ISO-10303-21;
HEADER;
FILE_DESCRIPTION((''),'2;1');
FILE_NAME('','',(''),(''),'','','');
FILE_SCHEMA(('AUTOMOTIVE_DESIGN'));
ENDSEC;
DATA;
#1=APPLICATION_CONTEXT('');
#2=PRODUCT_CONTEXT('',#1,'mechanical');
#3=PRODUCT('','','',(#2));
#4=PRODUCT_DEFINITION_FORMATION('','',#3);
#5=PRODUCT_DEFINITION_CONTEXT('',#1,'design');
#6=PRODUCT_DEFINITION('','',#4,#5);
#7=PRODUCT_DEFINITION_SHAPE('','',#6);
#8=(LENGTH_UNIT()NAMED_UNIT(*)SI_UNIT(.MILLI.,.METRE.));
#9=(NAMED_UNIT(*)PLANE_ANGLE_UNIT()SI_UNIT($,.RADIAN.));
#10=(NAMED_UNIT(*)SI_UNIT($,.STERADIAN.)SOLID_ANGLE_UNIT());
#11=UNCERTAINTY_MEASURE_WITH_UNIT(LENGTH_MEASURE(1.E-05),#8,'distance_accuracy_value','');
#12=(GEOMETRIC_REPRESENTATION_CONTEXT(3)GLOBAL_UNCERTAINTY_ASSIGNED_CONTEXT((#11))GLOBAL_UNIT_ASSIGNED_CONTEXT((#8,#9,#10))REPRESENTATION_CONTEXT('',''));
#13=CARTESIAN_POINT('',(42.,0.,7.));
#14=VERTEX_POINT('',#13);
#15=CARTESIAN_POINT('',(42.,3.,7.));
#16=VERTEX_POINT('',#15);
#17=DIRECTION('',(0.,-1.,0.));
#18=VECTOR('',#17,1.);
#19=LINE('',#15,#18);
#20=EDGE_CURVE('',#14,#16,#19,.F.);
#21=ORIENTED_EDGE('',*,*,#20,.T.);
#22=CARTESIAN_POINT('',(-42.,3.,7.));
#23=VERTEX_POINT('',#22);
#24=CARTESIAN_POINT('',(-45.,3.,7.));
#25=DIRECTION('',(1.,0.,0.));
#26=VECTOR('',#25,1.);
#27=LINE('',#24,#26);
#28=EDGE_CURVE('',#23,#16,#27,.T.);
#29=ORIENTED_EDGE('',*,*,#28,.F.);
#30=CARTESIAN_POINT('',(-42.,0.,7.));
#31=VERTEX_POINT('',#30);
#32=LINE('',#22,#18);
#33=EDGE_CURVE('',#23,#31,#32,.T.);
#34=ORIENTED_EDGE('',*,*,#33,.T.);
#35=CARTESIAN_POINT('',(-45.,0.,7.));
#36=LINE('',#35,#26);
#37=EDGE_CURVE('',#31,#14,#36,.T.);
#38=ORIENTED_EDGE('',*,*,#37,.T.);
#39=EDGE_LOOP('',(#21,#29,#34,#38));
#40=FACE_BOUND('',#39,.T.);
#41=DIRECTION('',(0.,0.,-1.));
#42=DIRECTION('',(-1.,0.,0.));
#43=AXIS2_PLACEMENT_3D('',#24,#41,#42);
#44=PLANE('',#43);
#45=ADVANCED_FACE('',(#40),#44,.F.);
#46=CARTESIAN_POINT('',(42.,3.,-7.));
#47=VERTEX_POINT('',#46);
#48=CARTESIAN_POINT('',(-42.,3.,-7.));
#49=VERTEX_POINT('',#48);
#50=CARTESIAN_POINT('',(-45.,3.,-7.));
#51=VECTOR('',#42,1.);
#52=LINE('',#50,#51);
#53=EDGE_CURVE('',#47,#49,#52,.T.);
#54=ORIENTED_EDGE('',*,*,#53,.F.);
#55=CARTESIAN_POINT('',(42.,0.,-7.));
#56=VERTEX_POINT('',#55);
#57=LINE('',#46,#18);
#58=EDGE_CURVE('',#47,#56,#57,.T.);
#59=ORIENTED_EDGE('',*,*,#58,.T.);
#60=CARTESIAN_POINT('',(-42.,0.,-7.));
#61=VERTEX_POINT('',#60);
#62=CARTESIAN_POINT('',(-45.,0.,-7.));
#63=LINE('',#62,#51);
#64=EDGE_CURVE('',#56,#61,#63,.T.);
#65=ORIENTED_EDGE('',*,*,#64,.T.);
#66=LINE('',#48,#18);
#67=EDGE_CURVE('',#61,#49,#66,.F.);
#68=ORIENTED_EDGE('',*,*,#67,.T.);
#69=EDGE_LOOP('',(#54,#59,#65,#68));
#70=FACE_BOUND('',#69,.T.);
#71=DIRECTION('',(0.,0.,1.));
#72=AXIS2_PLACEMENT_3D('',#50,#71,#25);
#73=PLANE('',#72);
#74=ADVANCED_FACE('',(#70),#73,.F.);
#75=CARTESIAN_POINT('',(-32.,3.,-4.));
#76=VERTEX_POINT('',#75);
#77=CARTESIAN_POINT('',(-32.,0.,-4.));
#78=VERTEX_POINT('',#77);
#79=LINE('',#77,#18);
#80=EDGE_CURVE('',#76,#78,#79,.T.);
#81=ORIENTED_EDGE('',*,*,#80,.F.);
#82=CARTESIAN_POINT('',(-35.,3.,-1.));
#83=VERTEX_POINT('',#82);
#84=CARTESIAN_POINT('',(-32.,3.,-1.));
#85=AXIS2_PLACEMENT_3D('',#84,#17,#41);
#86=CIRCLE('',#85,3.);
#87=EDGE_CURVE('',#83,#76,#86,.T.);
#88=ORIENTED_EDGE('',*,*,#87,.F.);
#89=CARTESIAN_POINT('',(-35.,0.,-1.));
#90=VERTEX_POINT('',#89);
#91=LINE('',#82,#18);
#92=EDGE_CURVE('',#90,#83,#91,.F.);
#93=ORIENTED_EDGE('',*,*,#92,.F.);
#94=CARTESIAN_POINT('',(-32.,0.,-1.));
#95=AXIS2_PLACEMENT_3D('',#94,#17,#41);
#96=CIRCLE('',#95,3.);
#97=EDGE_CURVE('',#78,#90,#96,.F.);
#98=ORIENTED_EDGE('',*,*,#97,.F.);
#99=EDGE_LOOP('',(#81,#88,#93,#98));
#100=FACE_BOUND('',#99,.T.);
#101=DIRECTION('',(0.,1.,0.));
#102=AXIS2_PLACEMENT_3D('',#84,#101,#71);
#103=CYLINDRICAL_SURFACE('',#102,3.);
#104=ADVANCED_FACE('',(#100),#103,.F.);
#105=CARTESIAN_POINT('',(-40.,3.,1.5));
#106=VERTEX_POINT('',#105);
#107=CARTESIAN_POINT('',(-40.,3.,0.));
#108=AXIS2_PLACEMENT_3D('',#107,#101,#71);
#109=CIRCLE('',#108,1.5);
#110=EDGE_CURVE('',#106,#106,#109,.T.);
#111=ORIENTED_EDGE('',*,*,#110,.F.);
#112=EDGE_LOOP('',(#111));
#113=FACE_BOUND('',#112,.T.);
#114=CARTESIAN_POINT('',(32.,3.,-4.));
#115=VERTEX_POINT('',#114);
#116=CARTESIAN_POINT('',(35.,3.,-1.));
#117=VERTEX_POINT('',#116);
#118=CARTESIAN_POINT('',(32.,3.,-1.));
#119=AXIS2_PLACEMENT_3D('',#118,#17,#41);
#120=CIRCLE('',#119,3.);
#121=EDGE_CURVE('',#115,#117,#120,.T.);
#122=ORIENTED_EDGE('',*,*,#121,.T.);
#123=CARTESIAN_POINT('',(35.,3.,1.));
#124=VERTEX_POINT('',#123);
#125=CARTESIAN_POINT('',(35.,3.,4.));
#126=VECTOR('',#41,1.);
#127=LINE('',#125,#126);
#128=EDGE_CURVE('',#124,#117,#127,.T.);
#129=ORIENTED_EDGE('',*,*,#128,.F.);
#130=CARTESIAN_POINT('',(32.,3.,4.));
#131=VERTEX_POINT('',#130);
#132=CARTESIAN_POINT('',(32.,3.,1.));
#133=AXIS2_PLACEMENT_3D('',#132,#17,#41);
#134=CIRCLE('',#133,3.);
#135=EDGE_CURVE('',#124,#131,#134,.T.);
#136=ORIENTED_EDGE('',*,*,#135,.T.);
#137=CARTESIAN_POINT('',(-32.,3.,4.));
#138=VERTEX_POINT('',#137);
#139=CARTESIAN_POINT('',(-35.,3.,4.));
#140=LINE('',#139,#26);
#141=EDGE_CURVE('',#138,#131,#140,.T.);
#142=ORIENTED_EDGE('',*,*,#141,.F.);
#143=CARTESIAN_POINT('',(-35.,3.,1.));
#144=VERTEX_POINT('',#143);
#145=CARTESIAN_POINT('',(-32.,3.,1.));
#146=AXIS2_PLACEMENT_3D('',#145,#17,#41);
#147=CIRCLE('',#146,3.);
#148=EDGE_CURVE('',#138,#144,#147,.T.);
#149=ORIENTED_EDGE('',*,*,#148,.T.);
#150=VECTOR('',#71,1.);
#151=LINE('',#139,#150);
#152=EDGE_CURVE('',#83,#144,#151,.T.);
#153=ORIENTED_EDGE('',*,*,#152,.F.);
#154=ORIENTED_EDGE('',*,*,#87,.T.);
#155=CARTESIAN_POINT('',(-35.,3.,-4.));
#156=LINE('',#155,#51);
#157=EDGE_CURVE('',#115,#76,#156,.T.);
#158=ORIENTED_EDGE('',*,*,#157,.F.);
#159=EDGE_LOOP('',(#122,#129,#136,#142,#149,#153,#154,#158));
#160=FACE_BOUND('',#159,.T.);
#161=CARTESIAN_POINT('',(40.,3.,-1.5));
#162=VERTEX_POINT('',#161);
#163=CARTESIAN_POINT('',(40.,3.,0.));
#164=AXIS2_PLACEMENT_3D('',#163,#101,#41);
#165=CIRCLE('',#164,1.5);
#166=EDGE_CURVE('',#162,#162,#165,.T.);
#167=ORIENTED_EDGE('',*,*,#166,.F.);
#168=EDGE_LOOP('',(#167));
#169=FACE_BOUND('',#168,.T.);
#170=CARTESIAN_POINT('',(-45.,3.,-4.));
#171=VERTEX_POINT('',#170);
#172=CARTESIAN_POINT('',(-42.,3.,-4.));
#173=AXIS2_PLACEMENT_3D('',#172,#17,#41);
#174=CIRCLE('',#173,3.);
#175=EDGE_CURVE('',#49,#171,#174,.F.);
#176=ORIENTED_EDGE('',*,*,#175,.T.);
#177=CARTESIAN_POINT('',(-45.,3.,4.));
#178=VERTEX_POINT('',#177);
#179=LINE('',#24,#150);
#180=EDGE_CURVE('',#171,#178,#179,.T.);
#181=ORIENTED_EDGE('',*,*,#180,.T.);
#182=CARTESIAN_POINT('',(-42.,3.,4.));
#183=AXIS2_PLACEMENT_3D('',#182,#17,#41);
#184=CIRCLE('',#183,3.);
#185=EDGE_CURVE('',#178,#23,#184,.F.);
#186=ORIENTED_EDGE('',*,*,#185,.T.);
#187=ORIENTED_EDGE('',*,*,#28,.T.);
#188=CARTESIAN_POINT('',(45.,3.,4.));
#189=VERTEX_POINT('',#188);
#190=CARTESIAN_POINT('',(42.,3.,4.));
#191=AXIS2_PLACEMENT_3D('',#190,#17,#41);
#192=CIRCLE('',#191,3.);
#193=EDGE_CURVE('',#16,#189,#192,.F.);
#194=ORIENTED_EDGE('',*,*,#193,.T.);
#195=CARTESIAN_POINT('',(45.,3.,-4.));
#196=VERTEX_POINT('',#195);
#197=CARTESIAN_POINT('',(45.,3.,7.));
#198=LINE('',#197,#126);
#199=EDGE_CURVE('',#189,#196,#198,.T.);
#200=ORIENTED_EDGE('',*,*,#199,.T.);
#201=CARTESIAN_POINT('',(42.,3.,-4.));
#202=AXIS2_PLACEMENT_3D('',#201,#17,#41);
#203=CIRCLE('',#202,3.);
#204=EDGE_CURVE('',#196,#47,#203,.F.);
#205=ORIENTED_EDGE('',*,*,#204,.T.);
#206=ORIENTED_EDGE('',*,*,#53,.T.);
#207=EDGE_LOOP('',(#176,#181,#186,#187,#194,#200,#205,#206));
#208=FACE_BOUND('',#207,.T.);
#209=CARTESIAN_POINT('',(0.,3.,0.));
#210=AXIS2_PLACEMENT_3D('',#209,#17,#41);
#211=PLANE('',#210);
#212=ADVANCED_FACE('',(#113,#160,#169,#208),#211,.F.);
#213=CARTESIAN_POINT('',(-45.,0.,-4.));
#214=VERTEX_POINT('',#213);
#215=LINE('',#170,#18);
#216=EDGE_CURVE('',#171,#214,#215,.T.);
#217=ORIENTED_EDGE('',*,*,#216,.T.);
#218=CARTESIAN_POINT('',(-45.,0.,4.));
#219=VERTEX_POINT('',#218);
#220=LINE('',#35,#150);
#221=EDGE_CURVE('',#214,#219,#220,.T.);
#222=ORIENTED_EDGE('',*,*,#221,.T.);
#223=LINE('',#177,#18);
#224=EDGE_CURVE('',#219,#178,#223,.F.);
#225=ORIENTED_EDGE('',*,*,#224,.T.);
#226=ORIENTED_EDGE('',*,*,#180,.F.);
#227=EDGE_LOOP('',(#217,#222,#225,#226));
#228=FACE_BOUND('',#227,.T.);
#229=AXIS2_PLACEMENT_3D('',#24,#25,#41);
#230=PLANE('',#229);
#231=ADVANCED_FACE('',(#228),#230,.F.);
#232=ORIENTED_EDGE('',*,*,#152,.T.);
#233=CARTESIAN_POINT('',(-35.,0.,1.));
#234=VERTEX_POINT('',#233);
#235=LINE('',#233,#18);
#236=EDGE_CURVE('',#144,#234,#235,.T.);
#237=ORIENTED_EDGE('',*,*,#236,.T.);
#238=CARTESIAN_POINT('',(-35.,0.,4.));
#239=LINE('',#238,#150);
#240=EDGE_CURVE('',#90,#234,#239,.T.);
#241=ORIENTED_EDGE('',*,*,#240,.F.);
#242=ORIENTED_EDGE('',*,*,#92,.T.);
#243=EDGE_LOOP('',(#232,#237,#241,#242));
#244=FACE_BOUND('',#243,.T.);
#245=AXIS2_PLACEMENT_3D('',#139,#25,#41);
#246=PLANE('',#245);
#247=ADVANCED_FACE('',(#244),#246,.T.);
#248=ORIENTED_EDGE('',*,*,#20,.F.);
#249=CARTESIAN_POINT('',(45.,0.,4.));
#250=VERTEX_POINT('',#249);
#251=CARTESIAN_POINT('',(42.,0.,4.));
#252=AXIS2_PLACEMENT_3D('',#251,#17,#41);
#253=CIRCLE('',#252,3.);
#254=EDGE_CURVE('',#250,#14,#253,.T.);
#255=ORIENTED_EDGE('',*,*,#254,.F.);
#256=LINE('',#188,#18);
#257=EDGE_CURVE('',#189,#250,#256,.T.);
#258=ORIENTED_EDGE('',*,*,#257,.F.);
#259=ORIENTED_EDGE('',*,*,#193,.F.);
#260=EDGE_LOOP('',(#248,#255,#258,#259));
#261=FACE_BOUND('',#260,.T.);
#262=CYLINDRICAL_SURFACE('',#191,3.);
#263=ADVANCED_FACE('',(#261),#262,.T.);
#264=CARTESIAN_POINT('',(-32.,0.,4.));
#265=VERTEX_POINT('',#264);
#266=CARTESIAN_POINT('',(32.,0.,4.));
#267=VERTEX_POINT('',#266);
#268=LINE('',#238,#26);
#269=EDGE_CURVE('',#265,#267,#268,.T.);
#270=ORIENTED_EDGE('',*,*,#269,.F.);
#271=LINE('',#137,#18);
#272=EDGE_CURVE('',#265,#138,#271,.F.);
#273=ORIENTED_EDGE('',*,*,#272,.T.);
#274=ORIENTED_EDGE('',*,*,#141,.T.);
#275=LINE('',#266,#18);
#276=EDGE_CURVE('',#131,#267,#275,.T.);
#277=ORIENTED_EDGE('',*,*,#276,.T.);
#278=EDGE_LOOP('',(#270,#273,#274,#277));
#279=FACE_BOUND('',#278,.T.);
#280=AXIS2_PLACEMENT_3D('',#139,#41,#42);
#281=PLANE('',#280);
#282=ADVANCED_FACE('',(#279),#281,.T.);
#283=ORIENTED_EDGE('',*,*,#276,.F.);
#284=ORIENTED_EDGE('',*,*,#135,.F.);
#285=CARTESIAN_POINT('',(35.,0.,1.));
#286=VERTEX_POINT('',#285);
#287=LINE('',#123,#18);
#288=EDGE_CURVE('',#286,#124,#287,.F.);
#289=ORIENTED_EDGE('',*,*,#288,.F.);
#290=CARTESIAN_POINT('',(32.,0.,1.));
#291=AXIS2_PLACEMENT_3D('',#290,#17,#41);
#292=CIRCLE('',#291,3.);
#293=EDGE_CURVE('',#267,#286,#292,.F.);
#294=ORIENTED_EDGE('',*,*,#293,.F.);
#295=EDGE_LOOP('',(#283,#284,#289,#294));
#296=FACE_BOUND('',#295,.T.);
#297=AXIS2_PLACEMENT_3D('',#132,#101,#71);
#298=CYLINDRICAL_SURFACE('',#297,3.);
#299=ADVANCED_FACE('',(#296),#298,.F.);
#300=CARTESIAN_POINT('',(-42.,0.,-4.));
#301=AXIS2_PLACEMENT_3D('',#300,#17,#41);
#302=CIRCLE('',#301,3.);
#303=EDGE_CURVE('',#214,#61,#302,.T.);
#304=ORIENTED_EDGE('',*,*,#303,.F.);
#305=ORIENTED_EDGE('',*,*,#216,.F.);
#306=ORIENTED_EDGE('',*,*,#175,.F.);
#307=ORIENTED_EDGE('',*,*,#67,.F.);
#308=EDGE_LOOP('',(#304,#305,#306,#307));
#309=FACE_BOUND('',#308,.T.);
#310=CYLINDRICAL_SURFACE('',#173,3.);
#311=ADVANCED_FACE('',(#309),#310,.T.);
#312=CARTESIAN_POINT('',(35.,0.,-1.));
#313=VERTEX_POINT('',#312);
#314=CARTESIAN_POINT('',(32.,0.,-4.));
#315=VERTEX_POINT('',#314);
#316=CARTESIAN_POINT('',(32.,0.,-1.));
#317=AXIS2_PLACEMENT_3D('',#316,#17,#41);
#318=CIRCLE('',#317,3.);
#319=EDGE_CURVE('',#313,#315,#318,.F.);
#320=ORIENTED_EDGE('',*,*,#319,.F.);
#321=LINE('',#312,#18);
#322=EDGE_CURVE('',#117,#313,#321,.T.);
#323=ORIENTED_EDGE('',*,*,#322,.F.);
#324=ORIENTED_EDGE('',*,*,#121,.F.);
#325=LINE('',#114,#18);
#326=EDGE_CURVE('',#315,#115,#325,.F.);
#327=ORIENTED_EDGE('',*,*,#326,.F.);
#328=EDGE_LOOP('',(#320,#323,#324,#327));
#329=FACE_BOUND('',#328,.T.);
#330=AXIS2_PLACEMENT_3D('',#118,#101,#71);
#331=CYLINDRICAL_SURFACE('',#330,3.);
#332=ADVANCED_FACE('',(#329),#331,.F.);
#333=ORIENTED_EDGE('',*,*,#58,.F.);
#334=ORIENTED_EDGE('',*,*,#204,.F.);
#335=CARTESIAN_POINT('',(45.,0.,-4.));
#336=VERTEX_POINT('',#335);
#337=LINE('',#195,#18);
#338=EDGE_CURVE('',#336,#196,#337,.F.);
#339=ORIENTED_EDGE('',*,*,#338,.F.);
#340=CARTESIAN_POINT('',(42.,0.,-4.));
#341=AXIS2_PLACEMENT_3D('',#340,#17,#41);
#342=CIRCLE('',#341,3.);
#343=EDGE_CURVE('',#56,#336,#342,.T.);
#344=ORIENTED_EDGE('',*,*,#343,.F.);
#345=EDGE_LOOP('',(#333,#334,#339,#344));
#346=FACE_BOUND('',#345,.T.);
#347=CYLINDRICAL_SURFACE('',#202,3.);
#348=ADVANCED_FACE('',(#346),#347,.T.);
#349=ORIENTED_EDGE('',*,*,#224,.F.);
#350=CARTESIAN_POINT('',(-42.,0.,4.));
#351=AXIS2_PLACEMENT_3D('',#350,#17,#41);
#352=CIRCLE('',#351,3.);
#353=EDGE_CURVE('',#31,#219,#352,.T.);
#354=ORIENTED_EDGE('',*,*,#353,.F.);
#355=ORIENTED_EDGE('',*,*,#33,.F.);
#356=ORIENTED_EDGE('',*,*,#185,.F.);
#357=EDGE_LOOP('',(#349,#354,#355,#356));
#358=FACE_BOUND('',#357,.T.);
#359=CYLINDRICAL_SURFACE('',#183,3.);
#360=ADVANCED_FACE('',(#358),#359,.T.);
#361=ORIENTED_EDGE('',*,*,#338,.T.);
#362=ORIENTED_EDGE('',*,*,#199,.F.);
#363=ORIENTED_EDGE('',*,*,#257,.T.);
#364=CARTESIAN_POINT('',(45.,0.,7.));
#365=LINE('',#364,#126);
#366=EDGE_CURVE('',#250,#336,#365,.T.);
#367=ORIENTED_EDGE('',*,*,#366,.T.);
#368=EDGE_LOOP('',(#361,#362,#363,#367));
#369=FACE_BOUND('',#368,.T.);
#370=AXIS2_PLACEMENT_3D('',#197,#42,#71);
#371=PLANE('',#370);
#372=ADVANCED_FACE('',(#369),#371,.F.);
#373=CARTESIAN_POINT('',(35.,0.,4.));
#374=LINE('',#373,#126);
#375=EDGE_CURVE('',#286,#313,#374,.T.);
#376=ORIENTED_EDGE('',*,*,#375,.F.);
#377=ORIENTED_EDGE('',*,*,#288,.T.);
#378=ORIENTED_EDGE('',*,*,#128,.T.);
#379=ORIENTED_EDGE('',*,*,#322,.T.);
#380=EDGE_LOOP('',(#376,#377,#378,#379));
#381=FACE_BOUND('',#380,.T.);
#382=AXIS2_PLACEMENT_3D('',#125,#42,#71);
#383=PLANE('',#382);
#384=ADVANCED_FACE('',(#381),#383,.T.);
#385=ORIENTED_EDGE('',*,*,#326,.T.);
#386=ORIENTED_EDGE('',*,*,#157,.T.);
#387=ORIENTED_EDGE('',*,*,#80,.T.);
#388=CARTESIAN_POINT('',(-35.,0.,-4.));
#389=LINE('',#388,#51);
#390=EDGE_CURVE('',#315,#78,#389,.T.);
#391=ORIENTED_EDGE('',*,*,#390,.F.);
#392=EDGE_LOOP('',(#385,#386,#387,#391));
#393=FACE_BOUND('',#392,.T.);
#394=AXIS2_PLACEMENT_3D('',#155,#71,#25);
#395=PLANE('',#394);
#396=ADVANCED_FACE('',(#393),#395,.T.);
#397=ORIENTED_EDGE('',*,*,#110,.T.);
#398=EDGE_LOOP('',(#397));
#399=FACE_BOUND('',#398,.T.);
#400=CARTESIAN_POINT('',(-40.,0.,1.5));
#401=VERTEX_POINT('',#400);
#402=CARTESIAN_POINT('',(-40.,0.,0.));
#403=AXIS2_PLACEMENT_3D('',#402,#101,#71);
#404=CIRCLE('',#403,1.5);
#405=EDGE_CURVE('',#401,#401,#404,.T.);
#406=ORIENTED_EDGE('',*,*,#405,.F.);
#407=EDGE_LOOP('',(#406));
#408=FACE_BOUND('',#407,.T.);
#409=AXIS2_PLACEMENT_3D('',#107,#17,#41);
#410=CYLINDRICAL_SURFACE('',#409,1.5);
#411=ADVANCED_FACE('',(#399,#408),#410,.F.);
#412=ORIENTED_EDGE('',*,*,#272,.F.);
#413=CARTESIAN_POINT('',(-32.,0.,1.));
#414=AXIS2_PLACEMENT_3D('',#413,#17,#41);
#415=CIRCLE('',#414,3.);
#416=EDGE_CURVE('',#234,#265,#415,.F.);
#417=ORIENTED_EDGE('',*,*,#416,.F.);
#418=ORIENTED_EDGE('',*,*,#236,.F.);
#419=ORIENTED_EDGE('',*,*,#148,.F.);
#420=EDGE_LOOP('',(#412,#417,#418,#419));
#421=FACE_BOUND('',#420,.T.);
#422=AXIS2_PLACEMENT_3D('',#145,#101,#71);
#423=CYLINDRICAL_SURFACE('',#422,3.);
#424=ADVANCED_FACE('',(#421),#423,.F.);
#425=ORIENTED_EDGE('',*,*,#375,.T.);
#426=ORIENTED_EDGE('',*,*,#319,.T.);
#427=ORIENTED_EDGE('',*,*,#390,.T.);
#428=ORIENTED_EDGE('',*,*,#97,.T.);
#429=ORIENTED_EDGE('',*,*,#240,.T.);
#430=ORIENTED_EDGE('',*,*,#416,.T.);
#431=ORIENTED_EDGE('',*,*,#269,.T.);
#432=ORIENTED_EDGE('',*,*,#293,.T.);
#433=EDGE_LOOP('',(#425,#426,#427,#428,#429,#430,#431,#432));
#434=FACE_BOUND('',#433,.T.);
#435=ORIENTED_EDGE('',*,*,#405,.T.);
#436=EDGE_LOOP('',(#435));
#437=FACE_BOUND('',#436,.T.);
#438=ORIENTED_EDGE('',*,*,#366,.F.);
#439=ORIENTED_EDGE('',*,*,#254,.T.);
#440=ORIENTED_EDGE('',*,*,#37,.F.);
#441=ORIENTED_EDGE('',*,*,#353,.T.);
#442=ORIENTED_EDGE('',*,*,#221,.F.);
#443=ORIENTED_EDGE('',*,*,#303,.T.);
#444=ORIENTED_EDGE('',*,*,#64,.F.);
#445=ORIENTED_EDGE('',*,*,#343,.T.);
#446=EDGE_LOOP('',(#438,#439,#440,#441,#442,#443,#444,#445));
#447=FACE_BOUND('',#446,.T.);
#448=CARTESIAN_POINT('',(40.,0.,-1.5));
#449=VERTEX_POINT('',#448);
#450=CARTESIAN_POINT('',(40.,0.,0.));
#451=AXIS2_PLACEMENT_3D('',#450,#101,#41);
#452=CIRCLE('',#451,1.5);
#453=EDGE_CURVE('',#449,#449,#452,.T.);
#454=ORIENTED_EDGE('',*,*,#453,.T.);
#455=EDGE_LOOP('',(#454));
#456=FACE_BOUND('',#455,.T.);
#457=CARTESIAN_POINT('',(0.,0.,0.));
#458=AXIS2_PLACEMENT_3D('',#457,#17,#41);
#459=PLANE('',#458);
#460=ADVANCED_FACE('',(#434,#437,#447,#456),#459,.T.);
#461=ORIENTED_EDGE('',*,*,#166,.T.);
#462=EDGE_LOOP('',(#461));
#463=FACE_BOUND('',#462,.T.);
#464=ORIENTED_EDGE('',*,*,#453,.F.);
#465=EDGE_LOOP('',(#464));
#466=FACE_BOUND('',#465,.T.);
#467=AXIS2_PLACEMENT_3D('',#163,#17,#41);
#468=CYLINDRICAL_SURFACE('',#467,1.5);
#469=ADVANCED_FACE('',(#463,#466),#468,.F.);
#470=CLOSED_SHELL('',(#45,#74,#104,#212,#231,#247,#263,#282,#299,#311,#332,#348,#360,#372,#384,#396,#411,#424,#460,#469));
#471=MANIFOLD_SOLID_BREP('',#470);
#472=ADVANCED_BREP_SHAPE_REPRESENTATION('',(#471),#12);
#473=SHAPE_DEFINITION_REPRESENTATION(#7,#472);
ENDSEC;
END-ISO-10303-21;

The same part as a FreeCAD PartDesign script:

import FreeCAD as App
import Part
import Sketcher


def edges_at(feature, points):
    """Names of the edges that pass closest to the given points."""
    edges = feature.Shape.Edges
    near = lambda p: min(range(len(edges)), key=lambda i: edges[i].distToShape(Part.Vertex(*p))[0])
    return sorted({f"Edge{near(p) + 1}" for p in points})


def add_polygon(sketch, points):
    """Adds a closed chain of lines whose ends are joined by coincident constraints."""
    first, n = sketch.GeometryCount, len(points)
    for a, b in zip(points, points[1:] + points[:1]):
        sketch.addGeometry(Part.LineSegment(App.Vector(*a, 0), App.Vector(*b, 0)), False)
    for i in range(n):
        sketch.addConstraint(Sketcher.Constraint("Coincident", first + i, 2, first + (i + 1) % n, 1))

doc = App.newDocument("Part")
params = doc.addObject("Spreadsheet::Sheet", "Params")
for row, (alias, value) in enumerate([
    ("sketch1_diameter", "3 mm"),
    ("sketch1_width", "90 mm"),
    ("sketch1_width2", "70 mm"),
    ("sketch1_height", "14 mm"),
    ("sketch1_height2", "8 mm"),
    ("pad1_length", "3 mm"),
    ("fillet_radius", "3 mm"),
], start=1):
    params.set(f"A{row}", alias)
    params.set(f"B{row}", "=" + value)
    params.setAlias(f"B{row}", alias)

body = doc.addObject("PartDesign::Body", "Body")

# Sketch on XZ plane
sketch1 = doc.addObject("Sketcher::SketchObject", "Sketch")
body.addObject(sketch1)
sketch1.AttachmentSupport = (doc.XZ_Plane, [""])
sketch1.MapMode = "FlatFace"
add_polygon(sketch1, [(-45, -7), (-45, 7), (45, 7), (45, -7)])  # lines 0-3
sketch1.addGeometry(Part.Circle(App.Vector(-40, 0, 0), App.Vector(0, 0, 1), 1.5), False)  # 4
add_polygon(sketch1, [(35, 4), (-35, 4), (-35, -4), (35, -4)])  # lines 5-8
sketch1.addGeometry(Part.Circle(App.Vector(40, 0, 0), App.Vector(0, 0, 1), 1.5), False)  # 9
sketch1.addConstraint([
    Sketcher.Constraint("Vertical", 0),
    Sketcher.Constraint("Horizontal", 1),
    Sketcher.Constraint("Vertical", 2),
    Sketcher.Constraint("Horizontal", 3),
    Sketcher.Constraint("Horizontal", 5),
    Sketcher.Constraint("Vertical", 6),
    Sketcher.Constraint("Horizontal", 7),
    Sketcher.Constraint("Vertical", 8),
    Sketcher.Constraint("Equal", 4, 9),
    Sketcher.Constraint("Symmetric", 4, 3, 9, 3, -1, 1),
    Sketcher.Constraint("Symmetric", 0, 2, 2, 2, -1, 1),
    Sketcher.Constraint("Symmetric", 5, 2, 7, 2, -1, 1),
    Sketcher.Constraint("PointOnObject", 4, 3, -1),
    Sketcher.Constraint("Diameter", 4, 3.0),
    Sketcher.Constraint("DistanceX", 1, 1, 1, 2, 90.0),
    Sketcher.Constraint("DistanceX", 5, 2, 5, 1, 70.0),
    Sketcher.Constraint("DistanceY", 0, 1, 0, 2, 14.0),
    Sketcher.Constraint("DistanceY", 6, 2, 6, 1, 8.0),
    Sketcher.Constraint("DistanceX", 4, 3, -1, 1, 40.0),
])
sketch1.setExpression("Constraints[21]", "Params.sketch1_diameter")
sketch1.setExpression("Constraints[22]", "Params.sketch1_width")
sketch1.setExpression("Constraints[23]", "Params.sketch1_width2")
sketch1.setExpression("Constraints[24]", "Params.sketch1_height")
sketch1.setExpression("Constraints[25]", "Params.sketch1_height2")
pad1 = doc.addObject("PartDesign::Pad", "Pad")
body.addObject(pad1)
pad1.Profile = sketch1
pad1.setExpression("Length", "Params.pad1_length")
pad1.Reversed = True
doc.recompute()

fillet = doc.addObject("PartDesign::Fillet", "Fillet")
body.addObject(fillet)
fillet.Base = (pad1, edges_at(pad1, [
    (35, 1.5, 4),
    (35, 1.5, -4),
    (-35, 1.5, -4),
    (-35, 1.5, 4),
    (45, 1.5, 7),
    (-45, 1.5, 7),
    (-45, 1.5, -7),
    (45, 1.5, -7),
]))
fillet.setExpression("Radius", "Params.fillet_radius")

doc.recompute()
